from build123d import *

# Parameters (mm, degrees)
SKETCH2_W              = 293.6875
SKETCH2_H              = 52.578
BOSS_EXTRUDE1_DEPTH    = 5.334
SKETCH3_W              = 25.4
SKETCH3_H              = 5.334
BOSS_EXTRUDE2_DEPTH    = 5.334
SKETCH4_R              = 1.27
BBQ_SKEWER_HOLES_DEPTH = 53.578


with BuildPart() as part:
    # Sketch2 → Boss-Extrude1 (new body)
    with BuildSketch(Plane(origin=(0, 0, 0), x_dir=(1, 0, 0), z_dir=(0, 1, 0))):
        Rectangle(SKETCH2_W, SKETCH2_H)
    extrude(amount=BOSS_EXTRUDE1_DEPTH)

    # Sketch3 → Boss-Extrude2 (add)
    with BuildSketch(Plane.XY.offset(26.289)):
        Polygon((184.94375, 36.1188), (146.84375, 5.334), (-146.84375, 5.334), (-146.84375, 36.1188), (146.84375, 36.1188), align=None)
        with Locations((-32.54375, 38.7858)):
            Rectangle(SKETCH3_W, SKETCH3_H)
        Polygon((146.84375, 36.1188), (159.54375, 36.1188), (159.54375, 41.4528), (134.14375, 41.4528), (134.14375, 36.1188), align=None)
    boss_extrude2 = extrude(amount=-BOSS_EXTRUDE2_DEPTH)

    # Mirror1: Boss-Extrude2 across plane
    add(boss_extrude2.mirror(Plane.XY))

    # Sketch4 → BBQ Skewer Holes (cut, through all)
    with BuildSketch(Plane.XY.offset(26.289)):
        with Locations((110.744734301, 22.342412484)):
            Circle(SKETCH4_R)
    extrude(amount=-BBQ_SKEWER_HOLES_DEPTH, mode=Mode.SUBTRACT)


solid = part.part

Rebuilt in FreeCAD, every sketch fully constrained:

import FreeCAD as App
import Part
import Sketcher

V = App.Vector
Q = App.Units.Quantity


def add_polygon(sketch, points):
    """Adds a closed chain of lines whose ends are joined by coincident constraints."""
    first, n = sketch.GeometryCount, len(points)
    for a, b in zip(points, points[1:] + points[:1]):
        sketch.addGeometry(Part.LineSegment(App.Vector(*a, 0), App.Vector(*b, 0)), False)
    for i in range(n):
        sketch.addConstraint(Sketcher.Constraint("Coincident", first + i, 2, first + (i + 1) % n, 1))

doc = App.newDocument("Part")
body = doc.addObject("PartDesign::Body", "Body")

# Sketch on XZ plane
sketch1 = doc.addObject("Sketcher::SketchObject", "Sketch")
body.addObject(sketch1)
sketch1.AttachmentSupport = (doc.XZ_Plane, [""])
sketch1.MapMode = "FlatFace"
add_polygon(sketch1, [(-147, -26), (-147, 26), (147, 26), (147, -26)])  # lines 0-3
sketch1.addConstraint(Sketcher.Constraint("Vertical", 0))
sketch1.addConstraint(Sketcher.Constraint("Horizontal", 1))
sketch1.addConstraint(Sketcher.Constraint("Vertical", 2))
sketch1.addConstraint(Sketcher.Constraint("Horizontal", 3))
sketch1.addConstraint(Sketcher.Constraint("Symmetric", 0, 2, 2, 2, -1, 1))
sketch1.addConstraint(Sketcher.Constraint("DistanceY", 0, 1, 0, 2, Q("2.07 in")))
sketch1.addConstraint(Sketcher.Constraint("DistanceX", 1, 1, 1, 2, Q("11.5625 in")))
pad1 = doc.addObject("PartDesign::Pad", "Pad")
body.addObject(pad1)
pad1.Profile = sketch1
pad1.Length = Q("0.21 in")
pad1.Reversed = True

# Sketch on XY plane
sketch2 = doc.addObject("Sketcher::SketchObject", "Sketch001")
body.addObject(sketch2)
sketch2.AttachmentSupport = (doc.XY_Plane, [""])
sketch2.MapMode = "FlatFace"
sketch2.AttachmentOffset = App.Placement(V(0, 0, 1.035 * 25.4), App.Rotation())
add_polygon(sketch2, [(147, 5), (185, 36), (160, 36), (160, 41), (134, 41), (134, 36), (-20, 36), (-20, 41), (-45, 41), (-45, 36), (-147, 36), (-147, 5)])  # lines 0-11
sketch2.addConstraint(Sketcher.Constraint("Horizontal", 1))
sketch2.addConstraint(Sketcher.Constraint("Vertical", 2))
sketch2.addConstraint(Sketcher.Constraint("Horizontal", 3))
sketch2.addConstraint(Sketcher.Constraint("Vertical", 4))
sketch2.addConstraint(Sketcher.Constraint("Horizontal", 5))
sketch2.addConstraint(Sketcher.Constraint("Vertical", 6))
sketch2.addConstraint(Sketcher.Constraint("Horizontal", 7))
sketch2.addConstraint(Sketcher.Constraint("Vertical", 8))
sketch2.addConstraint(Sketcher.Constraint("Horizontal", 9))
sketch2.addConstraint(Sketcher.Constraint("Vertical", 10))
sketch2.addConstraint(Sketcher.Constraint("Horizontal", 11))
sketch2.addConstraint(Sketcher.Constraint("Horizontal", 1, 2, 4, 2))
sketch2.addConstraint(Sketcher.Constraint("Horizontal", 3, 2, 6, 2))
sketch2.addConstraint(Sketcher.Constraint("Horizontal", 5, 2, 8, 2))
sketch2.addConstraint(Sketcher.Constraint("Equal", 1, 3))
sketch2.addConstraint(Sketcher.Constraint("Equal", 3, 7))
sketch2.addConstraint(Sketcher.Constraint("DistanceX", 1, 2, 1, 1, Q("1 in")))
sketch2.addConstraint(Sketcher.Constraint("DistanceX", 9, 2, 9, 1, Q("4 in")))
sketch2.addConstraint(Sketcher.Constraint("DistanceY", 2, 1, 2, 2, Q("0.21 in")))
sketch2.addConstraint(Sketcher.Constraint("DistanceX", 11, 2, 1, 2, Q("0.5 in")))
sketch2.addConstraint(Sketcher.Constraint("DistanceX", 5, 2, 5, 1, Q("6.0625 in")))
sketch2.addConstraint(Sketcher.Constraint("DistanceY", 10, 2, 10, 1, Q("1.212 in")))
sketch2.addConstraint(Sketcher.Constraint("DistanceY", -1, 1, 10, 2, Q("0.21 in")))
sketch2.addConstraint(Sketcher.Constraint("DistanceX", -1, 1, 0, 2, Q("7.28125 in")))
pad2 = doc.addObject("PartDesign::Pad", "Pad001")
body.addObject(pad2)
pad2.Profile = sketch2
pad2.Length = Q("0.21 in")
pad2.Reversed = True
doc.recompute()

mirrored = doc.addObject("PartDesign::Mirrored", "Mirrored")
body.addObject(mirrored)
mirrored.Originals = [pad2]
mirrored.MirrorPlane = (doc.XY_Plane, [""])
body.Tip = mirrored

# Sketch on XY plane
sketch3 = doc.addObject("Sketcher::SketchObject", "Sketch002")
body.addObject(sketch3)
sketch3.AttachmentSupport = (doc.XY_Plane, [""])
sketch3.MapMode = "FlatFace"
sketch3.AttachmentOffset = App.Placement(V(0, 0, 1.035 * 25.4), App.Rotation())
sketch3.addGeometry(Part.Circle(V(110.7, 22.3, 0), V(0, 0, 1), 1.3), False)
sketch3.addConstraint(Sketcher.Constraint("Diameter", 0, Q("0.1 in")))
sketch3.addConstraint(Sketcher.Constraint("DistanceX", -1, 1, 0, 3, 110.744734))
sketch3.addConstraint(Sketcher.Constraint("DistanceY", -1, 1, 0, 3, 22.342412))
pocket1 = doc.addObject("PartDesign::Pocket", "Pocket")
body.addObject(pocket1)
pocket1.Profile = sketch3
pocket1.Type = "ThroughAll"

doc.recompute()
